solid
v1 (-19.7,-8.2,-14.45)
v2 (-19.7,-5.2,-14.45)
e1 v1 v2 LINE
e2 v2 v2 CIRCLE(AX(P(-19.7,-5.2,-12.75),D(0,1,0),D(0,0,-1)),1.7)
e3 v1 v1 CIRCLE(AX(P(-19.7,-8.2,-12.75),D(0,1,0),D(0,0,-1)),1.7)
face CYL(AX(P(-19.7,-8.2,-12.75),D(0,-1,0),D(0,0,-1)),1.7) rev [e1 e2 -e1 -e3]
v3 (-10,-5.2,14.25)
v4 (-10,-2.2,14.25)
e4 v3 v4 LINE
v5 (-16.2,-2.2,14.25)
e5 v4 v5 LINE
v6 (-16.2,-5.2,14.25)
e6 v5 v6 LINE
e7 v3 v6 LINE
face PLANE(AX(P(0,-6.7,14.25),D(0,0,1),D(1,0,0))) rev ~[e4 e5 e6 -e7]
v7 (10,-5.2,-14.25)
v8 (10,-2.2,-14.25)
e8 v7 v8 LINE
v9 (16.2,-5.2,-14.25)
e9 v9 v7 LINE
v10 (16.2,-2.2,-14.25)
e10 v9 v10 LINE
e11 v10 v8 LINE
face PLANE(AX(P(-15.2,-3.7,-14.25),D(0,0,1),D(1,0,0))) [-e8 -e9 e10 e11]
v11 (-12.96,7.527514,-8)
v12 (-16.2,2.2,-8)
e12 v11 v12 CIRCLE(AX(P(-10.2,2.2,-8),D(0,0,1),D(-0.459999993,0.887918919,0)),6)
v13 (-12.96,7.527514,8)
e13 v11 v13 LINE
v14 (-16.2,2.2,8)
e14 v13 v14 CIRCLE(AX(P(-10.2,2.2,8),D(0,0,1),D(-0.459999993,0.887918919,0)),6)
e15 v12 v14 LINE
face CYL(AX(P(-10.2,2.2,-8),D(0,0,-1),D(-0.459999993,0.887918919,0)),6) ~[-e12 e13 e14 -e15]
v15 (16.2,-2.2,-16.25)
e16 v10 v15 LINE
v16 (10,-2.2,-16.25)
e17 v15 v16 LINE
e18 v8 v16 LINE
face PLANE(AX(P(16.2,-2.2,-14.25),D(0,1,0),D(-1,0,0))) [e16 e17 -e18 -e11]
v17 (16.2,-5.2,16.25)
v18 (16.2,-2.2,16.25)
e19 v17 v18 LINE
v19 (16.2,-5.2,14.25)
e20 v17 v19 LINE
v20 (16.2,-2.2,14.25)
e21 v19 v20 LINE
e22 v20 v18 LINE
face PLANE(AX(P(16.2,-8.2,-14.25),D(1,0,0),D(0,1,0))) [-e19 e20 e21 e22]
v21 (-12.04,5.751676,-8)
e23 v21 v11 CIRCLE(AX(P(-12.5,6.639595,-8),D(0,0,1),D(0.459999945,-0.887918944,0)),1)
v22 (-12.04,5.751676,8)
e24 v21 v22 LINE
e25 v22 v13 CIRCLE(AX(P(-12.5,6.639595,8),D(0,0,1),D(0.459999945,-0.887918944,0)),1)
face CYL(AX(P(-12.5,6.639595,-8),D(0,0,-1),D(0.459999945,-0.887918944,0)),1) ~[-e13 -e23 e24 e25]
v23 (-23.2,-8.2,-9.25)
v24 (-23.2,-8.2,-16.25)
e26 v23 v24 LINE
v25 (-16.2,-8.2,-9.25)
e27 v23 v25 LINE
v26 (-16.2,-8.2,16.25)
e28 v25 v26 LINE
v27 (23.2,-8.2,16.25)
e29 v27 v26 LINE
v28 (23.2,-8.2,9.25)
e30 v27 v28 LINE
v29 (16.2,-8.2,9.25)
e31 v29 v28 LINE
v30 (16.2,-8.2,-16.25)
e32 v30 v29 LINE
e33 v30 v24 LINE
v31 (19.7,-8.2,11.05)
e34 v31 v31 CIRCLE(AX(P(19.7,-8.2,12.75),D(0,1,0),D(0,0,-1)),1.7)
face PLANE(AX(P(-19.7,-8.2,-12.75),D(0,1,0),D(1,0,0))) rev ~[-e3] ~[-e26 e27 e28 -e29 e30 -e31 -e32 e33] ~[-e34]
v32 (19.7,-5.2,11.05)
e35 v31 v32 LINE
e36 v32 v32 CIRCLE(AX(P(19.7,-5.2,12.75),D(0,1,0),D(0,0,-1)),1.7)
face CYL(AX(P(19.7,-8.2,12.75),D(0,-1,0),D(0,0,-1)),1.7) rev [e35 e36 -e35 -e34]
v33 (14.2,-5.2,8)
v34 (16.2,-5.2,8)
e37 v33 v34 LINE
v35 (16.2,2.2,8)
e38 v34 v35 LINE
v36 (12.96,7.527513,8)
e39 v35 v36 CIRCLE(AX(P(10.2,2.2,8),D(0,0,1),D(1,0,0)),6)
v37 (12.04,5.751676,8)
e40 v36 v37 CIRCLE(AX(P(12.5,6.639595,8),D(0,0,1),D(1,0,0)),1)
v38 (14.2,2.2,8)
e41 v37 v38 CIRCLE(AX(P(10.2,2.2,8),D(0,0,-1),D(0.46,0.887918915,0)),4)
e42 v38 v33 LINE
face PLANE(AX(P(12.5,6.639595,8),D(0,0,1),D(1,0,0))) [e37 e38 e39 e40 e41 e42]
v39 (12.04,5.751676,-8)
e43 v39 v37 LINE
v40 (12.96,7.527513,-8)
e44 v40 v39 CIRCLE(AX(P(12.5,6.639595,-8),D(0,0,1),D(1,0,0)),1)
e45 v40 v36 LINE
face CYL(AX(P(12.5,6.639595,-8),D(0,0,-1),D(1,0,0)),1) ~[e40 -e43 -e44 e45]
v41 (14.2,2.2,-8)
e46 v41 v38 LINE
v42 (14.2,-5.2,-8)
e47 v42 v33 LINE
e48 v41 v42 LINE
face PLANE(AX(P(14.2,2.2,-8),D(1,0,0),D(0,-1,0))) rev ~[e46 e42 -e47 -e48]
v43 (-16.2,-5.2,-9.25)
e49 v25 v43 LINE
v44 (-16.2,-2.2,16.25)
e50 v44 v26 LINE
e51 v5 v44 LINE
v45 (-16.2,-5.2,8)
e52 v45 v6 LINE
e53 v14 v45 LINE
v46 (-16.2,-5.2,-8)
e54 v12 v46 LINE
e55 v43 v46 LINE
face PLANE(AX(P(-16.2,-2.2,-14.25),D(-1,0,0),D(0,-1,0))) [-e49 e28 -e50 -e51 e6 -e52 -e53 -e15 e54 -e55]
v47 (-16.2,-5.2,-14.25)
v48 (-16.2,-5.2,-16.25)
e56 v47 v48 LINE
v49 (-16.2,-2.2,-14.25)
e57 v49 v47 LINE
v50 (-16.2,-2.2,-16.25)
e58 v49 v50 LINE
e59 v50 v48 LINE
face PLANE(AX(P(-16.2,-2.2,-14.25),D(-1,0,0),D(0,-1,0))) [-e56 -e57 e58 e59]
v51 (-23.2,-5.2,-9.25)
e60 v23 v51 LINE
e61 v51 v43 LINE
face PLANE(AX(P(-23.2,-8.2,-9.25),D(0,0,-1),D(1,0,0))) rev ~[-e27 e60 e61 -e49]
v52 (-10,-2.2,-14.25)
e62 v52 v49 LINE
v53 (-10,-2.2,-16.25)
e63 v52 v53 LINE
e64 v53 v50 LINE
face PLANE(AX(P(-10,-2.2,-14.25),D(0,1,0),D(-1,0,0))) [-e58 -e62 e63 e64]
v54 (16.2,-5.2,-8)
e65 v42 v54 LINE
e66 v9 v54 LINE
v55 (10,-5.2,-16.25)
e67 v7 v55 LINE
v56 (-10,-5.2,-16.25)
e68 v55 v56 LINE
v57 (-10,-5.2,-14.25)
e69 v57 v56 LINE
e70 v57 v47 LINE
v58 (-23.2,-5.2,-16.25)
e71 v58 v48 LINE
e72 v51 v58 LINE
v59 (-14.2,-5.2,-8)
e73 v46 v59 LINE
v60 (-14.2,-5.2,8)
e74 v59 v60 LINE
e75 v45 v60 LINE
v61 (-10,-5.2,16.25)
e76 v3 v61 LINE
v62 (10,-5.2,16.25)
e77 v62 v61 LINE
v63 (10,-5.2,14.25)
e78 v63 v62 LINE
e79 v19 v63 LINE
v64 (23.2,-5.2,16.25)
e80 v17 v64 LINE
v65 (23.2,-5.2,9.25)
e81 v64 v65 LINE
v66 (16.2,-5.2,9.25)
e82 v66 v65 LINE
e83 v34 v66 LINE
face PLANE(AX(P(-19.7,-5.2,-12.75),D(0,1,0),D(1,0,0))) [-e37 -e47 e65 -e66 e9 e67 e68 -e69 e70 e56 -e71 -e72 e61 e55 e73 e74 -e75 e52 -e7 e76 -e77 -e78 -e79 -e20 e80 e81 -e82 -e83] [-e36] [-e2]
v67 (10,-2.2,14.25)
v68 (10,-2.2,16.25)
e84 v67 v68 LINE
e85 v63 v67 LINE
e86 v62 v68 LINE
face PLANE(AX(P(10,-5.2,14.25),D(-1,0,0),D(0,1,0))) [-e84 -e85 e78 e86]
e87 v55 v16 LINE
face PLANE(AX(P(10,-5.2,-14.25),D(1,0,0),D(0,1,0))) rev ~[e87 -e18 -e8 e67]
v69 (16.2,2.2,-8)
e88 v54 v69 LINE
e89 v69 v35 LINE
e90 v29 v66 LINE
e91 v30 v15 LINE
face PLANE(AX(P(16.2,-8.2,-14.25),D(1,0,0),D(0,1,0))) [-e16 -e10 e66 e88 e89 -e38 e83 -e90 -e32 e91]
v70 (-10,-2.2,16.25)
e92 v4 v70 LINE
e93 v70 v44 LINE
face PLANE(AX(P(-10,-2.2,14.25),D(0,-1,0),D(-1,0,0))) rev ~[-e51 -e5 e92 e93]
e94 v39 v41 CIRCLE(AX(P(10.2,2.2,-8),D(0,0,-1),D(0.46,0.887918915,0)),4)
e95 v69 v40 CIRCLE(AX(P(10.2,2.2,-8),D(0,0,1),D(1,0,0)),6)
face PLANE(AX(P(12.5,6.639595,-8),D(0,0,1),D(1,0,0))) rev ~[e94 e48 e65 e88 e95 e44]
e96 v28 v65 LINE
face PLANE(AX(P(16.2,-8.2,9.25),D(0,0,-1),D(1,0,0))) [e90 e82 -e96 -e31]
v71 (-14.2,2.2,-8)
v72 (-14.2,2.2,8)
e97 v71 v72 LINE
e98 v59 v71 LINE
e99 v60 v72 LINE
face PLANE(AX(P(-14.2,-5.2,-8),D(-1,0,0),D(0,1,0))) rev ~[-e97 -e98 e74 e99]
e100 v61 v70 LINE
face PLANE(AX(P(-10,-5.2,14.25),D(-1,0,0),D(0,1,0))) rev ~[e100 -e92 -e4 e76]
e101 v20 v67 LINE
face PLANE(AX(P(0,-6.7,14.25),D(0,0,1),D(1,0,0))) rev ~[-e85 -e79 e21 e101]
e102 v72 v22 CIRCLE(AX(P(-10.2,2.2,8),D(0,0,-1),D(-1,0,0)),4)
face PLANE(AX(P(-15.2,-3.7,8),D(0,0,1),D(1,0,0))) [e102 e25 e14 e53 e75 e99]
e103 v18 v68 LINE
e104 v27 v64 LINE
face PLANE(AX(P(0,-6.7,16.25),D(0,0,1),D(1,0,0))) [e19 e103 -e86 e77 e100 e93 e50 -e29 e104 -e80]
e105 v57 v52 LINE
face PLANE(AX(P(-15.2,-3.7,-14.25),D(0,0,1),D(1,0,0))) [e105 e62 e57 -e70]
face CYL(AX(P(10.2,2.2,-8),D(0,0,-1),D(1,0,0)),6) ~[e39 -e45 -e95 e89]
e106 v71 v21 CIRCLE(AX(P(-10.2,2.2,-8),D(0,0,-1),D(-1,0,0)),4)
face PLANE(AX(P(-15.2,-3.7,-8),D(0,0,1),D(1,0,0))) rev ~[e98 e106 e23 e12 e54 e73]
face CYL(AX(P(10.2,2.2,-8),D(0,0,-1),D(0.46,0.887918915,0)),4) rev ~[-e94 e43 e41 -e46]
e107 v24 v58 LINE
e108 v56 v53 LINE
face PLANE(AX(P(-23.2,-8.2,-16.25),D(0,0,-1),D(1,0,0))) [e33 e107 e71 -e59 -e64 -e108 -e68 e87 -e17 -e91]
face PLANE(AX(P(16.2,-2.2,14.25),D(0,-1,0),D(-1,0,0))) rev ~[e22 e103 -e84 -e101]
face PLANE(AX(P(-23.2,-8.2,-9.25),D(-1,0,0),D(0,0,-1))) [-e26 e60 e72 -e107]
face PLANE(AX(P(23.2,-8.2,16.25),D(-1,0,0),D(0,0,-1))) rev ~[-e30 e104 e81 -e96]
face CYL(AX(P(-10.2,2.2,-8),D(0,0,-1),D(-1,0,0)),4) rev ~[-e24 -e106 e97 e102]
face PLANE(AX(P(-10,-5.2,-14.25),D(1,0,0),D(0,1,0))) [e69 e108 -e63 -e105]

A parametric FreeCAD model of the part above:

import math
import FreeCAD as App
import Part
import Sketcher
from FreeCAD import Vector
Q = App.Units.Quantity


def add_polygon(sketch, points):
    """Adds a closed chain of lines whose ends are joined by coincident constraints."""
    first, n = sketch.GeometryCount, len(points)
    for a, b in zip(points, points[1:] + points[:1]):
        sketch.addGeometry(Part.LineSegment(App.Vector(*a, 0), App.Vector(*b, 0)), False)
    for i in range(n):
        sketch.addConstraint(Sketcher.Constraint("Coincident", first + i, 2, first + (i + 1) % n, 1))

doc = App.newDocument("Part")
body = doc.addObject("PartDesign::Body", "Body")

# Sketch on XY plane
sketch1 = body.newObject("Sketcher::SketchObject", "Sketch")
sketch1.AttachmentSupport = (doc.getObject("XY_Plane"), [""])
sketch1.MapMode = "FlatFace"
add_polygon(sketch1, [(-16.2, -5.2), (-16.2, -8.2), (16.2, -8.2), (16.2, -5.2)])  # lines 0-3
sketch1.addConstraint([
    Sketcher.Constraint("Vertical", 0),
    Sketcher.Constraint("Horizontal", 1),
    Sketcher.Constraint("Vertical", 2),
    Sketcher.Constraint("Horizontal", 3),
    Sketcher.Constraint("DistanceY", 0, 2, 0, 1, Q("3 mm")),
    Sketcher.Constraint("DistanceX", 1, 1, 1, 2, Q("32.4 mm")),
    Sketcher.Constraint("DistanceX", 0, 2, -1, 1, Q("16.2 mm")),
    Sketcher.Constraint("DistanceY", 0, 2, -1, 1, Q("8.2 mm")),
])
pad1 = body.newObject("PartDesign::Pad", "Pad")
pad1.Profile = sketch1
pad1.Type = "TwoLengths"
pad1.Length = 14.25
pad1.Length2 = 14.25

# Sketch on XY plane
sketch2 = body.newObject("Sketcher::SketchObject", "Sketch001")
sketch2.AttachmentSupport = (doc.getObject("XY_Plane"), [""])
sketch2.MapMode = "FlatFace"
sketch2.AttachmentOffset = App.Placement(Vector(0, 0, 14.25), App.Rotation())
add_polygon(sketch2, [(-16.2, -8.2), (16.2, -8.2), (16.2, -2.2), (10, -2.2), (10, -5.2), (-10, -5.2), (-10, -2.2), (-16.2, -2.2)])  # lines 0-7
sketch2.addConstraint([
    Sketcher.Constraint("Horizontal", 0),
    Sketcher.Constraint("Vertical", 1),
    Sketcher.Constraint("Horizontal", 2),
    Sketcher.Constraint("Vertical", 3),
    Sketcher.Constraint("Horizontal", 4),
    Sketcher.Constraint("Vertical", 5),
    Sketcher.Constraint("Horizontal", 6),
    Sketcher.Constraint("Vertical", 7),
    Sketcher.Constraint("Symmetric", 2, 2, 5, 2, -2),
    Sketcher.Constraint("Equal", 2, 6),
    Sketcher.Constraint("DistanceX", 4, 2, 4, 1, Q("20 mm")),
    Sketcher.Constraint("DistanceY", 1, 1, 1, 2, Q("6 mm")),
    Sketcher.Constraint("DistanceY", 3, 2, 3, 1, Q("3 mm")),
    Sketcher.Constraint("DistanceX", 0, 1, 0, 2, Q("32.4 mm")),
    Sketcher.Constraint("DistanceY", 0, 2, -1, 1, Q("8.2 mm")),
])
pad2 = body.newObject("PartDesign::Pad", "Pad001")
pad2.Profile = sketch2
pad2.Length = 2

# Sketch on XY plane
sketch3 = body.newObject("Sketcher::SketchObject", "Sketch002")
sketch3.AttachmentSupport = (doc.getObject("XY_Plane"), [""])
sketch3.MapMode = "FlatFace"
sketch3.AttachmentOffset = App.Placement(Vector(0, 0, -14.25), App.Rotation())
add_polygon(sketch3, [(-16.2, -2.2), (-16.2, -8.2), (16.2, -8.2), (16.2, -2.2), (10, -2.2), (10, -5.2), (-10, -5.2), (-10, -2.2)])  # lines 0-7
sketch3.addConstraint([
    Sketcher.Constraint("Vertical", 0),
    Sketcher.Constraint("Horizontal", 1),
    Sketcher.Constraint("Vertical", 2),
    Sketcher.Constraint("Horizontal", 3),
    Sketcher.Constraint("Vertical", 4),
    Sketcher.Constraint("Horizontal", 5),
    Sketcher.Constraint("Vertical", 6),
    Sketcher.Constraint("Horizontal", 7),
    Sketcher.Constraint("Symmetric", 3, 2, 6, 2, -2),
    Sketcher.Constraint("Equal", 3, 7),
    Sketcher.Constraint("DistanceX", 5, 2, 5, 1, Q("20 mm")),
    Sketcher.Constraint("DistanceY", 0, 2, 0, 1, Q("6 mm")),
    Sketcher.Constraint("DistanceY", 4, 2, 4, 1, Q("3 mm")),
    Sketcher.Constraint("DistanceX", 1, 1, 1, 2, Q("32.4 mm")),
    Sketcher.Constraint("DistanceY", 0, 2, -1, 1, Q("8.2 mm")),
])
pad3 = body.newObject("PartDesign::Pad", "Pad002")
pad3.Profile = sketch3
pad3.Length = 2
pad3.Reversed = True

# Sketch on XY plane
sketch4 = body.newObject("Sketcher::SketchObject", "Sketch003")
sketch4.AttachmentSupport = (doc.getObject("XY_Plane"), [""])
sketch4.MapMode = "FlatFace"
sketch4.addGeometry([
    Part.LineSegment(Vector(-16.2, -5.2, 0), Vector(-14.2, -5.2, 0)),  # 0
    Part.LineSegment(Vector(-14.2, -5.2, 0), Vector(-14.2, 2.2, 0)),  # 1
    Part.ArcOfCircle(Part.Circle(Vector(-10.2, 2.2, 0), Vector(0, 0, 1), 4), math.radians(117.387108), math.radians(180)),  # 2
    Part.ArcOfCircle(Part.Circle(Vector(-12.5, 6.639595, 0), Vector(0, 0, 1), 1), math.radians(-62.612896), math.radians(117.387104)),  # 3
    Part.ArcOfCircle(Part.Circle(Vector(-10.2, 2.2, 0), Vector(0, 0, 1), 6), math.radians(117.387107), math.radians(180)),  # 4
    Part.LineSegment(Vector(-16.2, 2.2, 0), Vector(-16.2, -5.2, 0)),  # 5
    Part.ArcOfCircle(Part.Circle(Vector(12.5, 6.639595, 0), Vector(0, 0, 1), 1), math.radians(62.612893), math.radians(242.612892)),  # 6
    Part.ArcOfCircle(Part.Circle(Vector(10.2, 2.2, 0), Vector(0, 0, 1), 4), math.radians(0), math.radians(62.612893)),  # 7
    Part.LineSegment(Vector(14.2, 2.2, 0), Vector(14.2, -5.2, 0)),  # 8
    Part.LineSegment(Vector(14.2, -5.2, 0), Vector(16.2, -5.2, 0)),  # 9
    Part.LineSegment(Vector(16.2, -5.2, 0), Vector(16.2, 2.2, 0)),  # 10
    Part.ArcOfCircle(Part.Circle(Vector(10.2, 2.2, 0), Vector(0, 0, 1), 6), math.radians(0), math.radians(62.612893)),  # 11
], False)
sketch4.addConstraint([
    Sketcher.Constraint("Coincident", 0, 2, 1, 1),
    Sketcher.Constraint("Tangent", 1, 2, 2, 2),
    Sketcher.Constraint("Tangent", 2, 1, 3, 1),
    Sketcher.Constraint("Tangent", 3, 2, 4, 1),
    Sketcher.Constraint("Tangent", 4, 2, 5, 1),
    Sketcher.Constraint("Coincident", 5, 2, 0, 1),
    Sketcher.Constraint("Tangent", 6, 2, 7, 2),
    Sketcher.Constraint("Tangent", 7, 1, 8, 1),
    Sketcher.Constraint("Coincident", 8, 2, 9, 1),
    Sketcher.Constraint("Coincident", 9, 2, 10, 1),
    Sketcher.Constraint("Tangent", 10, 2, 11, 1),
    Sketcher.Constraint("Tangent", 11, 2, 6, 1),
    Sketcher.Constraint("Horizontal", 0),
    Sketcher.Constraint("Vertical", 1),
    Sketcher.Constraint("Vertical", 5),
    Sketcher.Constraint("Vertical", 8),
    Sketcher.Constraint("Horizontal", 9),
    Sketcher.Constraint("Vertical", 10),
    Sketcher.Constraint("Coincident", 4, 3, 2, 3),
    Sketcher.Constraint("Coincident", 11, 3, 7, 3),
    Sketcher.Constraint("Equal", 3, 6),
    Sketcher.Constraint("Equal", 2, 7),
    Sketcher.Constraint("Symmetric", 3, 3, 6, 3, -2),
    Sketcher.Constraint("Symmetric", 0, 2, 8, 2, -2),
    Sketcher.Constraint("Radius", 2, Q("4 mm")),
    Sketcher.Constraint("Radius", 3, Q("1 mm")),
    Sketcher.Constraint("DistanceY", 1, 1, 1, 2, Q("7.4 mm")),
    Sketcher.Constraint("DistanceX", 3, 3, 6, 3, Q("25 mm")),
    Sketcher.Constraint("DistanceX", 2, 3, -1, 1, Q("10.2 mm")),
    Sketcher.Constraint("DistanceY", -1, 1, 2, 3, Q("2.2 mm")),
])
pad4 = body.newObject("PartDesign::Pad", "Pad003")
pad4.Profile = sketch4
pad4.Type = "TwoLengths"
pad4.Length = 8
pad4.Length2 = 8

# Sketch on XZ plane
sketch5 = body.newObject("Sketcher::SketchObject", "Sketch004")
sketch5.AttachmentSupport = (doc.getObject("XZ_Plane"), [""])
sketch5.MapMode = "FlatFace"
sketch5.AttachmentOffset = App.Placement(Vector(0, 0, 8.2), App.Rotation())
add_polygon(sketch5, [(-23.2, -16.25), (-23.2, -9.25), (-16.2, -9.25), (-16.2, -16.25)])  # lines 0-3
sketch5.addGeometry(Part.Circle(Vector(-19.7, -12.75, 0), Vector(0, 0, 1), 1.7), False)  # 4
add_polygon(sketch5, [(16.2, 9.25), (16.2, 16.25), (23.2, 16.25), (23.2, 9.25)])  # lines 5-8
sketch5.addGeometry(Part.Circle(Vector(19.7, 12.75, 0), Vector(0, 0, 1), 1.7), False)  # 9
sketch5.addConstraint([
    Sketcher.Constraint("Vertical", 0),
    Sketcher.Constraint("Horizontal", 1),
    Sketcher.Constraint("Vertical", 2),
    Sketcher.Constraint("Horizontal", 3),
    Sketcher.Constraint("Vertical", 5),
    Sketcher.Constraint("Horizontal", 6),
    Sketcher.Constraint("Vertical", 7),
    Sketcher.Constraint("Horizontal", 8),
    Sketcher.Constraint("Equal", 4, 9),
    Sketcher.Constraint("Symmetric", 4, 3, 9, 3, -1, 1),
    Sketcher.Constraint("Symmetric", 2, 2, 5, 2, -1, 1),
    Sketcher.Constraint("Symmetric", 0, 2, 7, 2, -1, 1),
    Sketcher.Constraint("Equal", 8, 0),
    Sketcher.Constraint("Diameter", 4, Q("3.4 mm")),
    Sketcher.Constraint("DistanceX", 1, 1, 1, 2, Q("7 mm")),
    Sketcher.Constraint("DistanceY", 0, 2, 9, 3, Q("22 mm")),
    Sketcher.Constraint("DistanceX", 4, 3, -1, 1, Q("19.7 mm")),
    Sketcher.Constraint("DistanceX", 0, 2, -1, 1, Q("23.2 mm")),
    Sketcher.Constraint("DistanceY", 4, 3, 9, 3, Q("25.5 mm")),
])
pad5 = body.newObject("PartDesign::Pad", "Pad004")
pad5.Profile = sketch5
pad5.Length = 3
pad5.Reversed = True

doc.recompute()
